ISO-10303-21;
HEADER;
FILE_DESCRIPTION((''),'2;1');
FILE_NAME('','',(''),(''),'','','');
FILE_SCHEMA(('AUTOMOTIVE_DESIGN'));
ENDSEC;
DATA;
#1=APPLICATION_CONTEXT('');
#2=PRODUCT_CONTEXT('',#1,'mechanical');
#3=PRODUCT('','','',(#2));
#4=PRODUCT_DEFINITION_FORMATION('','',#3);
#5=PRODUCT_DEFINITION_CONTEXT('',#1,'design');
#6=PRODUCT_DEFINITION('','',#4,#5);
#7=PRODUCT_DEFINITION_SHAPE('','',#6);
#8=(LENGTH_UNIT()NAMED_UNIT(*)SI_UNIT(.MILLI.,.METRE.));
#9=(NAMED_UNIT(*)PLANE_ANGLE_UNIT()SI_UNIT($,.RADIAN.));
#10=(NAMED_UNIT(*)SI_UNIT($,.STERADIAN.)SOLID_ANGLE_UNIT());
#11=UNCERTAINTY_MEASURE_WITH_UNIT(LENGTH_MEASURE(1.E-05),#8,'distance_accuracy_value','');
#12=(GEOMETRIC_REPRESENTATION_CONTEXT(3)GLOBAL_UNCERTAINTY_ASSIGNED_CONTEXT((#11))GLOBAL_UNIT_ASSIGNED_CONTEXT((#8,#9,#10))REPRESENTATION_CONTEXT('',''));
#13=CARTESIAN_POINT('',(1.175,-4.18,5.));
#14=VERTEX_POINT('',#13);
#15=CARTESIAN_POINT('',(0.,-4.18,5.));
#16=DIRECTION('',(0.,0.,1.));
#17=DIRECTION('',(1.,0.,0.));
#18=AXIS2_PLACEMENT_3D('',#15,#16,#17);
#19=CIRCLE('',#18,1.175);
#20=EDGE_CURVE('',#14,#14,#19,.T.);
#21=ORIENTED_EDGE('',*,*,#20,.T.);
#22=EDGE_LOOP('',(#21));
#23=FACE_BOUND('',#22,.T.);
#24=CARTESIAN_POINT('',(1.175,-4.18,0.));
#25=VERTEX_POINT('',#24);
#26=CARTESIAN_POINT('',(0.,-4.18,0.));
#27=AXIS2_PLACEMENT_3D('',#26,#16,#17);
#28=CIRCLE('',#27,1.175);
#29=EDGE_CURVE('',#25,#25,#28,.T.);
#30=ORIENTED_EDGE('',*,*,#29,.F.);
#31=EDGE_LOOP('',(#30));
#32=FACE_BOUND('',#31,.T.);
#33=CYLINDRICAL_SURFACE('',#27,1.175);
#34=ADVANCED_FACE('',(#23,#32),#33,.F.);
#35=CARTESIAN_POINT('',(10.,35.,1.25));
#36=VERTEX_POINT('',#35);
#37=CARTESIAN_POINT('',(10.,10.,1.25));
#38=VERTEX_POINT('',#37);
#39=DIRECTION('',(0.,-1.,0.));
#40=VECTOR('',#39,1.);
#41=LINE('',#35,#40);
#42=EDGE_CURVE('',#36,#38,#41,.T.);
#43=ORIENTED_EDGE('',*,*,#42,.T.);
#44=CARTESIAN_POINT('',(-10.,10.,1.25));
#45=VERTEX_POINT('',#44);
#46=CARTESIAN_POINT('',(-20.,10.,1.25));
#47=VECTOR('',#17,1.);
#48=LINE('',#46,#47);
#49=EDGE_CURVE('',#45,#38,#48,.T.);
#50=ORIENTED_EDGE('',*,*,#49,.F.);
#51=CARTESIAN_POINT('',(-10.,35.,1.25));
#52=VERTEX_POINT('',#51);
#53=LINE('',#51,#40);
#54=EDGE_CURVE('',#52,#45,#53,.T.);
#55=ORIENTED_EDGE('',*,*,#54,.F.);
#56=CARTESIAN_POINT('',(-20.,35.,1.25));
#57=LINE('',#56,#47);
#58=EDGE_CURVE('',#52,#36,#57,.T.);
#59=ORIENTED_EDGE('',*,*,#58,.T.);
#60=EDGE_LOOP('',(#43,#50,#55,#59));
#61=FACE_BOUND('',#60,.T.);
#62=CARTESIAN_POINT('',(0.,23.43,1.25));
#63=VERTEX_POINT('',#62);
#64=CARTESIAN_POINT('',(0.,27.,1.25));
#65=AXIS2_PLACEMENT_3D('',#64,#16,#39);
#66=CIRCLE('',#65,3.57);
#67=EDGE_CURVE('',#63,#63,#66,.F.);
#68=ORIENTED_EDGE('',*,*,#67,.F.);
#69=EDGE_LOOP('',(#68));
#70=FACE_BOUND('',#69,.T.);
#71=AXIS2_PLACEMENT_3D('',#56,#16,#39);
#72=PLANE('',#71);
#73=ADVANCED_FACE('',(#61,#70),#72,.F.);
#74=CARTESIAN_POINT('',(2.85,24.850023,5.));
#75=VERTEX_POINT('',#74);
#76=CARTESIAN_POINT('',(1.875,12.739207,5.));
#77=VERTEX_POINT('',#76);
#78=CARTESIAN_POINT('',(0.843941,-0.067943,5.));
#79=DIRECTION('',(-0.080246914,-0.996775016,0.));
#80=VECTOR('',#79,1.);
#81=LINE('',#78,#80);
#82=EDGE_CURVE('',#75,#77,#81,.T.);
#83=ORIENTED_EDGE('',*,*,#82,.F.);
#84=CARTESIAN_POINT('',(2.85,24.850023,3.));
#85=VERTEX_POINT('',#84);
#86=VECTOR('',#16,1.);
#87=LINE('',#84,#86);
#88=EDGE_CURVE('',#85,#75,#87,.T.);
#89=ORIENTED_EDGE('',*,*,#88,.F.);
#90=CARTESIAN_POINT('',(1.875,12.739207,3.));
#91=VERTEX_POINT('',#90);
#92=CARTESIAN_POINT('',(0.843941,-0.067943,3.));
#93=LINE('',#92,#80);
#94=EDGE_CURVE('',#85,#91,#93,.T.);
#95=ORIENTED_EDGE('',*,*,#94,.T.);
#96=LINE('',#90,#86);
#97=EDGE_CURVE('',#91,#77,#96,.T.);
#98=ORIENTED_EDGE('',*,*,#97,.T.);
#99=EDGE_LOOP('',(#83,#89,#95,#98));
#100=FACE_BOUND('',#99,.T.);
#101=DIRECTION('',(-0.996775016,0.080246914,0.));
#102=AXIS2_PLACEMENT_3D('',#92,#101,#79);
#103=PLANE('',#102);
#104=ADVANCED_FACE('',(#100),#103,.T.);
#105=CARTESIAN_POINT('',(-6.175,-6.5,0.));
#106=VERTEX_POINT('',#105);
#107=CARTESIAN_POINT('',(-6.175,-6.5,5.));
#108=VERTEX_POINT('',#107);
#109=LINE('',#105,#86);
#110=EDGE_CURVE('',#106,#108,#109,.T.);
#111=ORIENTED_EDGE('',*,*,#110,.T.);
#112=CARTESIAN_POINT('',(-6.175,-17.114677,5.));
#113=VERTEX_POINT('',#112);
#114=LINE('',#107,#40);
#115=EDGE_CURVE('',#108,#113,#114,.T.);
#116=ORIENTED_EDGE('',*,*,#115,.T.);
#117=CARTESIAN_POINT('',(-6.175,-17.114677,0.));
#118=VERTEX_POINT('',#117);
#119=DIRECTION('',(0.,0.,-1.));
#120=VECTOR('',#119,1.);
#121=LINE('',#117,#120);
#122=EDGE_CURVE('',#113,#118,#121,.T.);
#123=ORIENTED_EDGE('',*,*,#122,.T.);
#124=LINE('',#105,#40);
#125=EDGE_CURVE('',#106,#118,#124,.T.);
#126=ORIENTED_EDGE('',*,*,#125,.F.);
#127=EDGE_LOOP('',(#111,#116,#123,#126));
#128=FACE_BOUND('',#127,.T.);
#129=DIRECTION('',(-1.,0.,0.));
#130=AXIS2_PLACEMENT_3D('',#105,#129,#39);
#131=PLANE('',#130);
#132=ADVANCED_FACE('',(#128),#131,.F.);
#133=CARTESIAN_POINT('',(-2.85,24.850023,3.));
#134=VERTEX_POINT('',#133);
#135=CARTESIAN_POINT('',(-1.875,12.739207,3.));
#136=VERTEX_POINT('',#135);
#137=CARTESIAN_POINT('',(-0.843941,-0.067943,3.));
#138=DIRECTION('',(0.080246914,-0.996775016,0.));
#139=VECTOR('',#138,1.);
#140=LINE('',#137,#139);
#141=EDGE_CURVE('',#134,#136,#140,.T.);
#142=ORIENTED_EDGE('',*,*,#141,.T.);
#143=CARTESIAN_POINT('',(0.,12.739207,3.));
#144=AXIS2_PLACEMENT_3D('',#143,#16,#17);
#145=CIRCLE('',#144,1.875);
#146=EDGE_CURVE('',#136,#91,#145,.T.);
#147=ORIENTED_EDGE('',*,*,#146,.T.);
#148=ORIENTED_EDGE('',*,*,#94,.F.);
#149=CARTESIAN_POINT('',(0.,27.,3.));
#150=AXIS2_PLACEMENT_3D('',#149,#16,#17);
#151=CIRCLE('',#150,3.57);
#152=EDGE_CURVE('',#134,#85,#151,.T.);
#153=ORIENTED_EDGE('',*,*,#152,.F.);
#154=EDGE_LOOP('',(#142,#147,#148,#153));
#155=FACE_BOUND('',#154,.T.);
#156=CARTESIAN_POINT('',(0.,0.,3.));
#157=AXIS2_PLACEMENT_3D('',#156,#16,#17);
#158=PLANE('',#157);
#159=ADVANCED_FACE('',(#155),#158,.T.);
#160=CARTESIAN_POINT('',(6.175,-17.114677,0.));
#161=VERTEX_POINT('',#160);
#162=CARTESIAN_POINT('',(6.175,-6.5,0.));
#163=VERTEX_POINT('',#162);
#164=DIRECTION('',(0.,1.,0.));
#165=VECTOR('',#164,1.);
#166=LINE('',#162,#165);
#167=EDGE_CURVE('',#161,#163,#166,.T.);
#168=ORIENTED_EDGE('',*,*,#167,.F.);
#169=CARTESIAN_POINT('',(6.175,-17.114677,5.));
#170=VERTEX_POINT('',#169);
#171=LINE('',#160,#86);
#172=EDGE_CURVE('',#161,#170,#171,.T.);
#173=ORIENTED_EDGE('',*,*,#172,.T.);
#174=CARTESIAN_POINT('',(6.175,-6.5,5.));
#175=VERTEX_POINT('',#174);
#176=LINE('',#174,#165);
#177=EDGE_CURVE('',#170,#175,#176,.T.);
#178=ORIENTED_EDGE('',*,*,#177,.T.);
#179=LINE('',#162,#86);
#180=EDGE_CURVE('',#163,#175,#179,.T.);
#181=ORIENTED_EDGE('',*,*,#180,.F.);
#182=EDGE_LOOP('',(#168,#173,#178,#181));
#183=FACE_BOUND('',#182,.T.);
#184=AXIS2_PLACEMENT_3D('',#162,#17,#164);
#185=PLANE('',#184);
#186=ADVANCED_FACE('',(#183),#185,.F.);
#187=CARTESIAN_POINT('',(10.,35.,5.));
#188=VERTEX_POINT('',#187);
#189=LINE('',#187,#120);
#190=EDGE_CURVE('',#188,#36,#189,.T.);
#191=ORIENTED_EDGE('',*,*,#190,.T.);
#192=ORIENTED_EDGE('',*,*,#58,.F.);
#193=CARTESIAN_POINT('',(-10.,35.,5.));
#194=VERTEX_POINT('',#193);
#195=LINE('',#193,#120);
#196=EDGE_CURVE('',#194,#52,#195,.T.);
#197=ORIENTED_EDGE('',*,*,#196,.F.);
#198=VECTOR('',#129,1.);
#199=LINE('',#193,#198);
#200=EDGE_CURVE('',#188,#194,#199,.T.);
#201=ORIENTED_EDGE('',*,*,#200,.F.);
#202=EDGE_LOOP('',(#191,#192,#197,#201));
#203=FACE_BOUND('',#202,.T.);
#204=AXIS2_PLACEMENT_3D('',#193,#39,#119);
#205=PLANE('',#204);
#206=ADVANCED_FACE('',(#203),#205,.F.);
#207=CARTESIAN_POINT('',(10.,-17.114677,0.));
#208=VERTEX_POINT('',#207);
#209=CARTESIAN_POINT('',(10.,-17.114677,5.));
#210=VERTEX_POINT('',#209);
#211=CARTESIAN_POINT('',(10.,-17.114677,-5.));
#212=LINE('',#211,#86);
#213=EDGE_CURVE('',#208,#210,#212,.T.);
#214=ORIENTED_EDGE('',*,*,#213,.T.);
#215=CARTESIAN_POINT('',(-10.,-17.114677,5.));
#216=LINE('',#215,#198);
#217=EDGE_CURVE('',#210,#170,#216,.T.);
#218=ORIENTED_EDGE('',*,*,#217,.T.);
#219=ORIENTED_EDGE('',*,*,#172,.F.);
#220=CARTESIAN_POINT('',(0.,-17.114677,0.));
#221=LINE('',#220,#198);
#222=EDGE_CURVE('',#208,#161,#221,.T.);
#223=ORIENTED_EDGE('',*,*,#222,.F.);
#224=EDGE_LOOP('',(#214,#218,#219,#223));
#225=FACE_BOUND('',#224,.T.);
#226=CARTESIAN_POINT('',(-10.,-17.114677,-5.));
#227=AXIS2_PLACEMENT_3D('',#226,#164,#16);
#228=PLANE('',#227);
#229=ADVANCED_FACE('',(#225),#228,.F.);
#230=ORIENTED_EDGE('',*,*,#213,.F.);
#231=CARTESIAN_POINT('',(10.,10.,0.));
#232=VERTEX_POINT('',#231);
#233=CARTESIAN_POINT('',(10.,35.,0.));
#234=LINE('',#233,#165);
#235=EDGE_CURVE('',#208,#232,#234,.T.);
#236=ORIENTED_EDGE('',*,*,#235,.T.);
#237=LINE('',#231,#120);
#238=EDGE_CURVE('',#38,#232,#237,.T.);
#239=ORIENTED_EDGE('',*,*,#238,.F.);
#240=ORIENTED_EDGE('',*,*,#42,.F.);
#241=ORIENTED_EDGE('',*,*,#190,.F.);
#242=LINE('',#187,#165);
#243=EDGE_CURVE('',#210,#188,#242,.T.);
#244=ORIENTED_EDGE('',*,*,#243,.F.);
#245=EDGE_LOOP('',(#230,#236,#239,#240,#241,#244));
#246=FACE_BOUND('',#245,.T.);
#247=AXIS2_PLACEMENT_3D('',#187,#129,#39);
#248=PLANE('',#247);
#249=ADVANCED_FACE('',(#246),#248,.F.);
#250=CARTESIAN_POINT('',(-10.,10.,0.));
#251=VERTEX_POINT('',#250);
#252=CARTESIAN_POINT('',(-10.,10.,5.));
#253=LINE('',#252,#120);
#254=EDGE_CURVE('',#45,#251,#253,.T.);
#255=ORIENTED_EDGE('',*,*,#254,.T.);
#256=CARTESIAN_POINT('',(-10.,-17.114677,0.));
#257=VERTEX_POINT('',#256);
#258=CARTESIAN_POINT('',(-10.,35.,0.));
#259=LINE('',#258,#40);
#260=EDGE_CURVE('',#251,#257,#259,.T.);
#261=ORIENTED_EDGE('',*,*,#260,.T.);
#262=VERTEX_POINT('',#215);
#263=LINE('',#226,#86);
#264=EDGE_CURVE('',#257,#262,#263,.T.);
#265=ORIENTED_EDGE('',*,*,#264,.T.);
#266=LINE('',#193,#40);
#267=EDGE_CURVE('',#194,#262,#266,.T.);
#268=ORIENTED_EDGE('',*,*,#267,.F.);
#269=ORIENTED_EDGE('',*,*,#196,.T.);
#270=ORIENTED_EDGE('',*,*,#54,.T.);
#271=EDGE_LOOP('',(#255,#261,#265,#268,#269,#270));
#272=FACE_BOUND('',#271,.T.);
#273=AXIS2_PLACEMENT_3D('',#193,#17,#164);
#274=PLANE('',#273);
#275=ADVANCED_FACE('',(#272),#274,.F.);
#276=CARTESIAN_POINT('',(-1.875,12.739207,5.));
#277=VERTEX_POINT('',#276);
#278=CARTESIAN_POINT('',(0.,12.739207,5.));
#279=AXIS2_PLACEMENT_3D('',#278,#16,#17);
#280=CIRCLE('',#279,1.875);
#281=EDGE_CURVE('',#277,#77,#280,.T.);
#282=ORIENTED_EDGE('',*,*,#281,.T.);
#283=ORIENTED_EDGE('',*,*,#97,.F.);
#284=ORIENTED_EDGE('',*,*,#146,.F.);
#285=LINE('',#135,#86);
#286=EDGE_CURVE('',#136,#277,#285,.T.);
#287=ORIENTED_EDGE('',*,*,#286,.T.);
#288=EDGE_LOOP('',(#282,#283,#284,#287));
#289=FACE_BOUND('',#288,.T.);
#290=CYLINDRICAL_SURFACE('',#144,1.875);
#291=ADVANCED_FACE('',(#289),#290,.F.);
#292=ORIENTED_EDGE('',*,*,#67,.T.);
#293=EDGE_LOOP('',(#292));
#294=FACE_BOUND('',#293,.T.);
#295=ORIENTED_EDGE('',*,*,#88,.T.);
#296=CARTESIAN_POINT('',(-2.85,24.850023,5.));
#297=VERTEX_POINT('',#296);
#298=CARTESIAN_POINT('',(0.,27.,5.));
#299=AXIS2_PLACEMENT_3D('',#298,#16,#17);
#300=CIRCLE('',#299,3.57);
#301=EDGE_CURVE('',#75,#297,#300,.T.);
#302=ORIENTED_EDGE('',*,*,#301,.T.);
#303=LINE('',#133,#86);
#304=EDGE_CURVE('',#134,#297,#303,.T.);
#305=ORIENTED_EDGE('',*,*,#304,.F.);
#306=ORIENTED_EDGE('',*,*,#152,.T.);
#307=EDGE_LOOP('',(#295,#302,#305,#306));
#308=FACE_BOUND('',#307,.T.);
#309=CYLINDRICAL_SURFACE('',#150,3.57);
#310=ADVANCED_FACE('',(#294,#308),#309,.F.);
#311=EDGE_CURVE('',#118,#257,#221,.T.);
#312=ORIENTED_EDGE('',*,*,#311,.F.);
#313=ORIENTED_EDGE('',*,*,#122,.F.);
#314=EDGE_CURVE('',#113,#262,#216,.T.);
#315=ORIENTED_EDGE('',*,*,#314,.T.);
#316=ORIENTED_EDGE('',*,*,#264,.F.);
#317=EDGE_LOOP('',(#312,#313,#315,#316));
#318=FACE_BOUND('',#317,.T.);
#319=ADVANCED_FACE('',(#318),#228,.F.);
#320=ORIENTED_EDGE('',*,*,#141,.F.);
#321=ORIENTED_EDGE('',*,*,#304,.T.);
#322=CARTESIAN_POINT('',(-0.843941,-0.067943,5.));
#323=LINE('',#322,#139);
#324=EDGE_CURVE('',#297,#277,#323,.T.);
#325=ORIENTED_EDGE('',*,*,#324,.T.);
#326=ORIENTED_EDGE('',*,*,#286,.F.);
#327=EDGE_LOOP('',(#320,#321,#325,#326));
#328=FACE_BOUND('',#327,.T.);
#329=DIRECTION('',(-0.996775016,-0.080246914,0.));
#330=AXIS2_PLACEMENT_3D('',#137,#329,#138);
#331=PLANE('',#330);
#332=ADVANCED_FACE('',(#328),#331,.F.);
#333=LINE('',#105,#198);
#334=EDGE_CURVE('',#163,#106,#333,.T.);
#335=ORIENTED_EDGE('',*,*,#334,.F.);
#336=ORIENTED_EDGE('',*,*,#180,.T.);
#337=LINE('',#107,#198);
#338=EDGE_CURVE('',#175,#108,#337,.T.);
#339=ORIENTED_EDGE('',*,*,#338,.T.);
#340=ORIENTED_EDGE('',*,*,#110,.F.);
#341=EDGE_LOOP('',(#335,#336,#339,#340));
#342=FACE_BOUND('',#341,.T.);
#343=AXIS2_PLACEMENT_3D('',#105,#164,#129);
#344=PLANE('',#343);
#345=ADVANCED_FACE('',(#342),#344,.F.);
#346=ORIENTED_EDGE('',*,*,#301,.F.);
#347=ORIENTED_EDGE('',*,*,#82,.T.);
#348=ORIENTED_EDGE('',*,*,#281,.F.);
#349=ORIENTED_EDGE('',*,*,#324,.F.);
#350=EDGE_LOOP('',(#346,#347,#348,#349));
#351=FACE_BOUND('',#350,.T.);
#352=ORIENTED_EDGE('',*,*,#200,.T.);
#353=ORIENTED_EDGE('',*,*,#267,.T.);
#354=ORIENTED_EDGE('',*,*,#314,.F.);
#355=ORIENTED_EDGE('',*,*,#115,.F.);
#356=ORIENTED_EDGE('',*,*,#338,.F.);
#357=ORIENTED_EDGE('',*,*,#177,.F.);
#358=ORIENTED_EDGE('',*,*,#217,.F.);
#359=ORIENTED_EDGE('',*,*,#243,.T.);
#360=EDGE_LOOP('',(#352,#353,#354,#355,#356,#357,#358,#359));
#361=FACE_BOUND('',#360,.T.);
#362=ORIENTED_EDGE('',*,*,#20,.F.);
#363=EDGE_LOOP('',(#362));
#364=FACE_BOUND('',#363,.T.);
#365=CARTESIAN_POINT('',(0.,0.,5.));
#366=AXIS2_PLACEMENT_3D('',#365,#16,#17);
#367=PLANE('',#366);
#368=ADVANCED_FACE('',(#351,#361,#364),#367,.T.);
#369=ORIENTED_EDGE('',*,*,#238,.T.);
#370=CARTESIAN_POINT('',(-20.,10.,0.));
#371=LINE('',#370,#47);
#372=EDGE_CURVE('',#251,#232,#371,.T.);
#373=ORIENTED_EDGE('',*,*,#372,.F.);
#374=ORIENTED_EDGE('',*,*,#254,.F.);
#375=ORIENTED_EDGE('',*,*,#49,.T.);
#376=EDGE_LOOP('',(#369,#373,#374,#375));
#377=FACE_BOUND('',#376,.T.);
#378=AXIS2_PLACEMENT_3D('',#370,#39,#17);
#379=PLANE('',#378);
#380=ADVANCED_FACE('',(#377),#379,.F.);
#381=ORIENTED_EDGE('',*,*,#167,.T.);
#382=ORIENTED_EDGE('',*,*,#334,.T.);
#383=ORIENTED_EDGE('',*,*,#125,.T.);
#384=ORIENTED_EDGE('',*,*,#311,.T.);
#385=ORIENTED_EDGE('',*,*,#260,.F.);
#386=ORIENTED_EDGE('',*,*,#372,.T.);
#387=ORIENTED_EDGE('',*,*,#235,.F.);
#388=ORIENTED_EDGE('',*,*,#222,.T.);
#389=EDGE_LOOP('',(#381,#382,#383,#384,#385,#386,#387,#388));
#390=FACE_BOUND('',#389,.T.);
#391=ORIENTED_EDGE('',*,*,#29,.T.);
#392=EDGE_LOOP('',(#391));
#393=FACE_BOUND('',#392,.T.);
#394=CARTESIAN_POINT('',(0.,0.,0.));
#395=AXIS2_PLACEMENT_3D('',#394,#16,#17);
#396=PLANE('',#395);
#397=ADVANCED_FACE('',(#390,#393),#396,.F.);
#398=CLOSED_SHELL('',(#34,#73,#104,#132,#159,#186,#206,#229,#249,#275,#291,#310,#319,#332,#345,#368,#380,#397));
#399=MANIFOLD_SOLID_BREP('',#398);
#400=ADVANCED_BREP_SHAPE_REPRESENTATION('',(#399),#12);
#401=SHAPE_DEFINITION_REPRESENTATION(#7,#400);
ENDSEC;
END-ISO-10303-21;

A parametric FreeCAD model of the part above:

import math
import FreeCAD as App
import Part
import Sketcher
Q = App.Units.Quantity


def add_polygon(sketch, points):
    """Adds a closed chain of lines whose ends are joined by coincident constraints."""
    first, n = sketch.GeometryCount, len(points)
    for a, b in zip(points, points[1:] + points[:1]):
        sketch.addGeometry(Part.LineSegment(App.Vector(*a, 0), App.Vector(*b, 0)), False)
    for i in range(n):
        sketch.addConstraint(Sketcher.Constraint("Coincident", first + i, 2, first + (i + 1) % n, 1))

doc = App.newDocument("Part")
body = doc.addObject("PartDesign::Body", "Body")

sketch1 = doc.addObject("Sketcher::SketchObject", "Sketch")
body.addObject(sketch1)
sketch1.AttachmentSupport = (doc.XY_Plane, [""])
sketch1.MapMode = "FlatFace"
add_polygon(sketch1, [(-10, 35), (-10, -35), (10, -35), (10, 35)])
sketch1.addConstraint([
    Sketcher.Constraint("Vertical", 0),
    Sketcher.Constraint("Horizontal", 1),
    Sketcher.Constraint("Vertical", 2),
    Sketcher.Constraint("Horizontal", 3),
    Sketcher.Constraint("Symmetric", 0, 2, 2, 2, -1, 1),
    Sketcher.Constraint("DistanceX", 1, 1, 1, 2, Q("20 mm")),
    Sketcher.Constraint("DistanceY", 0, 2, 0, 1, Q("70 mm")),
])
pad1 = doc.addObject("PartDesign::Pad", "Pad")
body.addObject(pad1)
pad1.Profile = sketch1
pad1.Length = 5

sketch2 = doc.addObject("Sketcher::SketchObject", "Sketch001")
body.addObject(sketch2)
sketch2.AttachmentSupport = (doc.XY_Plane, [""])
sketch2.MapMode = "FlatFace"
sketch2.AttachmentOffset = App.Placement(App.Vector(0, 0, 5), App.Rotation())
sketch2.addGeometry([
    Part.LineSegment(App.Vector(-2.9, 24.9, 0), App.Vector(-1.9, 12.7, 0)),
    Part.ArcOfCircle(Part.Circle(App.Vector(0, 12.7, 0), App.Vector(0, 0, 1), 1.9), math.radians(180), math.radians(360)),
    Part.LineSegment(App.Vector(1.9, 12.7, 0), App.Vector(2.9, 24.9, 0)),
    Part.ArcOfCircle(Part.Circle(App.Vector(0, 27, 0), App.Vector(0, 0, 1), 3.6), math.radians(-37), math.radians(0)),
    Part.ArcOfCircle(Part.Circle(App.Vector(0, 27, 0), App.Vector(0, 0, 1), 3.6), math.radians(0), math.radians(217)),
], False)
sketch2.addConstraint([
    Sketcher.Constraint("Coincident", 0, 2, 1, 1),
    Sketcher.Constraint("Coincident", 1, 2, 2, 1),
    Sketcher.Constraint("Coincident", 2, 2, 3, 1),
    Sketcher.Constraint("Tangent", 3, 2, 4, 1),
    Sketcher.Constraint("Coincident", 4, 2, 0, 1),
    Sketcher.Constraint("Equal", 3, 4),
    Sketcher.Constraint("Symmetric", 0, 2, 1, 2, -2),
    Sketcher.Constraint("Symmetric", 2, 2, 4, 2, -2),
    Sketcher.Constraint("Horizontal", 1, 3, 0, 2),
    Sketcher.Constraint("Horizontal", 4, 3, 3, 2),
    Sketcher.Constraint("Radius", 3, Q("3.57 mm")),
    Sketcher.Constraint("DistanceY", -1, 1, 3, 3, Q("27 mm")),
    Sketcher.Constraint("Radius", 1, Q("1.875 mm")),
    Sketcher.Constraint("DistanceX", 4, 2, 2, 2, Q("5.7 mm")),
    Sketcher.Constraint("Distance", 0, Q("12.15 mm")),
])
pocket1 = doc.addObject("PartDesign::Pocket", "Pocket")
body.addObject(pocket1)
pocket1.Profile = sketch2
pocket1.Length = 2

sketch3 = doc.addObject("Sketcher::SketchObject", "Sketch002")
body.addObject(sketch3)
sketch3.AttachmentSupport = (doc.XY_Plane, [""])
sketch3.MapMode = "FlatFace"
sketch3.AttachmentOffset = App.Placement(App.Vector(0, 0, 3), App.Rotation())
sketch3.addGeometry(Part.Circle(App.Vector(0, 27, 0), App.Vector(0, 0, 1), 3.6), False)
sketch3.addConstraint([
    Sketcher.Constraint("PointOnObject", 0, 3, -2),
    Sketcher.Constraint("Diameter", 0, Q("7.14 mm")),
    Sketcher.Constraint("DistanceY", -1, 1, 0, 3, Q("27 mm")),
])
pocket2 = doc.addObject("PartDesign::Pocket", "Pocket001")
body.addObject(pocket2)
pocket2.Profile = sketch3
pocket2.Length = 3

sketch4 = doc.addObject("Sketcher::SketchObject", "Sketch003")
body.addObject(sketch4)
sketch4.AttachmentSupport = (doc.XY_Plane, [""])
sketch4.MapMode = "FlatFace"
sketch4.AttachmentOffset = App.Placement(App.Vector(0, 0, 5), App.Rotation())
sketch4.addGeometry(Part.Circle(App.Vector(0, -4.2, 0), App.Vector(0, 0, 1), 1.2), False)
sketch4.addGeometry(Part.Circle(App.Vector(0, -31.8, 0), App.Vector(0, 0, 1), 1.2), False)
add_polygon(sketch4, [(-6.2, -6.5), (-6.2, -29.5), (6.2, -29.5), (6.2, -6.5)])
sketch4.addConstraint([
    Sketcher.Constraint("Vertical", 2),
    Sketcher.Constraint("Horizontal", 3),
    Sketcher.Constraint("Vertical", 4),
    Sketcher.Constraint("Horizontal", 5),
    Sketcher.Constraint("Equal", 0, 1),
    Sketcher.Constraint("PointOnObject", 0, 3, -2),
    Sketcher.Constraint("PointOnObject", 1, 3, -2),
    Sketcher.Constraint("Diameter", 0, Q("2.35 mm")),
    Sketcher.Constraint("DistanceY", 2, 2, 2, 1, Q("23 mm")),
    Sketcher.Constraint("DistanceX", 3, 1, 3, 2, Q("12.35 mm")),
    Sketcher.Constraint("DistanceY", 2, 2, -1, 1, Q("29.5 mm")),
    Sketcher.Constraint("DistanceY", 0, 3, -1, 1, Q("4.18 mm")),
    Sketcher.Constraint("DistanceY", 1, 3, -1, 1, Q("31.82 mm")),
    Sketcher.Constraint("DistanceX", 2, 2, -1, 1, Q("6.175 mm")),
])
pocket3 = doc.addObject("PartDesign::Pocket", "Pocket002")
body.addObject(pocket3)
pocket3.Profile = sketch4
pocket3.Length = 5

sketch5 = doc.addObject("Sketcher::SketchObject", "Sketch004")
body.addObject(sketch5)
sketch5.AttachmentSupport = (doc.YZ_Plane, [""])
sketch5.MapMode = "FlatFace"
sketch5.AttachmentOffset = App.Placement(App.Vector(0, 0, 10), App.Rotation())
add_polygon(sketch5, [(35, 1.2), (10, 1.2), (10, 0), (35, 0)])
sketch5.addConstraint([
    Sketcher.Constraint("Horizontal", 0),
    Sketcher.Constraint("Vertical", 1),
    Sketcher.Constraint("Horizontal", 2),
    Sketcher.Constraint("Vertical", 3),
    Sketcher.Constraint("PointOnObject", 1, 2, -1),
    Sketcher.Constraint("DistanceX", 0, 2, 0, 1, Q("25 mm")),
    Sketcher.Constraint("DistanceX", -1, 1, 0, 2, Q("10 mm")),
    Sketcher.Constraint("DistanceY", 1, 2, 1, 1, Q("1.25 mm")),
])
pocket4 = doc.addObject("PartDesign::Pocket", "Pocket003")
body.addObject(pocket4)
pocket4.Profile = sketch5
pocket4.Length = 30

sketch6 = doc.addObject("Sketcher::SketchObject", "Sketch005")
body.addObject(sketch6)
sketch6.AttachmentSupport = (doc.XY_Plane, [""])
sketch6.MapMode = "FlatFace"
sketch6.AttachmentOffset = App.Placement(App.Vector(0, 0, 5), App.Rotation())
add_polygon(sketch6, [(-10, -17), (-10, -35), (10, -35), (10, -17)])
sketch6.addConstraint([
    Sketcher.Constraint("Vertical", 0),
    Sketcher.Constraint("Horizontal", 1),
    Sketcher.Constraint("Vertical", 2),
    Sketcher.Constraint("Horizontal", 3),
    Sketcher.Constraint("DistanceX", 1, 1, 1, 2, Q("20 mm")),
    Sketcher.Constraint("DistanceX", 0, 2, -1, 1, Q("10 mm")),
    Sketcher.Constraint("DistanceY", 0, 2, -1, 1, Q("35 mm")),
    Sketcher.Constraint("DistanceY", 0, 2, 0, 1, Q("17.885323 mm")),
])
pocket5 = doc.addObject("PartDesign::Pocket", "Pocket004")
body.addObject(pocket5)
pocket5.Profile = sketch6
pocket5.Length = 10

doc.recompute()
